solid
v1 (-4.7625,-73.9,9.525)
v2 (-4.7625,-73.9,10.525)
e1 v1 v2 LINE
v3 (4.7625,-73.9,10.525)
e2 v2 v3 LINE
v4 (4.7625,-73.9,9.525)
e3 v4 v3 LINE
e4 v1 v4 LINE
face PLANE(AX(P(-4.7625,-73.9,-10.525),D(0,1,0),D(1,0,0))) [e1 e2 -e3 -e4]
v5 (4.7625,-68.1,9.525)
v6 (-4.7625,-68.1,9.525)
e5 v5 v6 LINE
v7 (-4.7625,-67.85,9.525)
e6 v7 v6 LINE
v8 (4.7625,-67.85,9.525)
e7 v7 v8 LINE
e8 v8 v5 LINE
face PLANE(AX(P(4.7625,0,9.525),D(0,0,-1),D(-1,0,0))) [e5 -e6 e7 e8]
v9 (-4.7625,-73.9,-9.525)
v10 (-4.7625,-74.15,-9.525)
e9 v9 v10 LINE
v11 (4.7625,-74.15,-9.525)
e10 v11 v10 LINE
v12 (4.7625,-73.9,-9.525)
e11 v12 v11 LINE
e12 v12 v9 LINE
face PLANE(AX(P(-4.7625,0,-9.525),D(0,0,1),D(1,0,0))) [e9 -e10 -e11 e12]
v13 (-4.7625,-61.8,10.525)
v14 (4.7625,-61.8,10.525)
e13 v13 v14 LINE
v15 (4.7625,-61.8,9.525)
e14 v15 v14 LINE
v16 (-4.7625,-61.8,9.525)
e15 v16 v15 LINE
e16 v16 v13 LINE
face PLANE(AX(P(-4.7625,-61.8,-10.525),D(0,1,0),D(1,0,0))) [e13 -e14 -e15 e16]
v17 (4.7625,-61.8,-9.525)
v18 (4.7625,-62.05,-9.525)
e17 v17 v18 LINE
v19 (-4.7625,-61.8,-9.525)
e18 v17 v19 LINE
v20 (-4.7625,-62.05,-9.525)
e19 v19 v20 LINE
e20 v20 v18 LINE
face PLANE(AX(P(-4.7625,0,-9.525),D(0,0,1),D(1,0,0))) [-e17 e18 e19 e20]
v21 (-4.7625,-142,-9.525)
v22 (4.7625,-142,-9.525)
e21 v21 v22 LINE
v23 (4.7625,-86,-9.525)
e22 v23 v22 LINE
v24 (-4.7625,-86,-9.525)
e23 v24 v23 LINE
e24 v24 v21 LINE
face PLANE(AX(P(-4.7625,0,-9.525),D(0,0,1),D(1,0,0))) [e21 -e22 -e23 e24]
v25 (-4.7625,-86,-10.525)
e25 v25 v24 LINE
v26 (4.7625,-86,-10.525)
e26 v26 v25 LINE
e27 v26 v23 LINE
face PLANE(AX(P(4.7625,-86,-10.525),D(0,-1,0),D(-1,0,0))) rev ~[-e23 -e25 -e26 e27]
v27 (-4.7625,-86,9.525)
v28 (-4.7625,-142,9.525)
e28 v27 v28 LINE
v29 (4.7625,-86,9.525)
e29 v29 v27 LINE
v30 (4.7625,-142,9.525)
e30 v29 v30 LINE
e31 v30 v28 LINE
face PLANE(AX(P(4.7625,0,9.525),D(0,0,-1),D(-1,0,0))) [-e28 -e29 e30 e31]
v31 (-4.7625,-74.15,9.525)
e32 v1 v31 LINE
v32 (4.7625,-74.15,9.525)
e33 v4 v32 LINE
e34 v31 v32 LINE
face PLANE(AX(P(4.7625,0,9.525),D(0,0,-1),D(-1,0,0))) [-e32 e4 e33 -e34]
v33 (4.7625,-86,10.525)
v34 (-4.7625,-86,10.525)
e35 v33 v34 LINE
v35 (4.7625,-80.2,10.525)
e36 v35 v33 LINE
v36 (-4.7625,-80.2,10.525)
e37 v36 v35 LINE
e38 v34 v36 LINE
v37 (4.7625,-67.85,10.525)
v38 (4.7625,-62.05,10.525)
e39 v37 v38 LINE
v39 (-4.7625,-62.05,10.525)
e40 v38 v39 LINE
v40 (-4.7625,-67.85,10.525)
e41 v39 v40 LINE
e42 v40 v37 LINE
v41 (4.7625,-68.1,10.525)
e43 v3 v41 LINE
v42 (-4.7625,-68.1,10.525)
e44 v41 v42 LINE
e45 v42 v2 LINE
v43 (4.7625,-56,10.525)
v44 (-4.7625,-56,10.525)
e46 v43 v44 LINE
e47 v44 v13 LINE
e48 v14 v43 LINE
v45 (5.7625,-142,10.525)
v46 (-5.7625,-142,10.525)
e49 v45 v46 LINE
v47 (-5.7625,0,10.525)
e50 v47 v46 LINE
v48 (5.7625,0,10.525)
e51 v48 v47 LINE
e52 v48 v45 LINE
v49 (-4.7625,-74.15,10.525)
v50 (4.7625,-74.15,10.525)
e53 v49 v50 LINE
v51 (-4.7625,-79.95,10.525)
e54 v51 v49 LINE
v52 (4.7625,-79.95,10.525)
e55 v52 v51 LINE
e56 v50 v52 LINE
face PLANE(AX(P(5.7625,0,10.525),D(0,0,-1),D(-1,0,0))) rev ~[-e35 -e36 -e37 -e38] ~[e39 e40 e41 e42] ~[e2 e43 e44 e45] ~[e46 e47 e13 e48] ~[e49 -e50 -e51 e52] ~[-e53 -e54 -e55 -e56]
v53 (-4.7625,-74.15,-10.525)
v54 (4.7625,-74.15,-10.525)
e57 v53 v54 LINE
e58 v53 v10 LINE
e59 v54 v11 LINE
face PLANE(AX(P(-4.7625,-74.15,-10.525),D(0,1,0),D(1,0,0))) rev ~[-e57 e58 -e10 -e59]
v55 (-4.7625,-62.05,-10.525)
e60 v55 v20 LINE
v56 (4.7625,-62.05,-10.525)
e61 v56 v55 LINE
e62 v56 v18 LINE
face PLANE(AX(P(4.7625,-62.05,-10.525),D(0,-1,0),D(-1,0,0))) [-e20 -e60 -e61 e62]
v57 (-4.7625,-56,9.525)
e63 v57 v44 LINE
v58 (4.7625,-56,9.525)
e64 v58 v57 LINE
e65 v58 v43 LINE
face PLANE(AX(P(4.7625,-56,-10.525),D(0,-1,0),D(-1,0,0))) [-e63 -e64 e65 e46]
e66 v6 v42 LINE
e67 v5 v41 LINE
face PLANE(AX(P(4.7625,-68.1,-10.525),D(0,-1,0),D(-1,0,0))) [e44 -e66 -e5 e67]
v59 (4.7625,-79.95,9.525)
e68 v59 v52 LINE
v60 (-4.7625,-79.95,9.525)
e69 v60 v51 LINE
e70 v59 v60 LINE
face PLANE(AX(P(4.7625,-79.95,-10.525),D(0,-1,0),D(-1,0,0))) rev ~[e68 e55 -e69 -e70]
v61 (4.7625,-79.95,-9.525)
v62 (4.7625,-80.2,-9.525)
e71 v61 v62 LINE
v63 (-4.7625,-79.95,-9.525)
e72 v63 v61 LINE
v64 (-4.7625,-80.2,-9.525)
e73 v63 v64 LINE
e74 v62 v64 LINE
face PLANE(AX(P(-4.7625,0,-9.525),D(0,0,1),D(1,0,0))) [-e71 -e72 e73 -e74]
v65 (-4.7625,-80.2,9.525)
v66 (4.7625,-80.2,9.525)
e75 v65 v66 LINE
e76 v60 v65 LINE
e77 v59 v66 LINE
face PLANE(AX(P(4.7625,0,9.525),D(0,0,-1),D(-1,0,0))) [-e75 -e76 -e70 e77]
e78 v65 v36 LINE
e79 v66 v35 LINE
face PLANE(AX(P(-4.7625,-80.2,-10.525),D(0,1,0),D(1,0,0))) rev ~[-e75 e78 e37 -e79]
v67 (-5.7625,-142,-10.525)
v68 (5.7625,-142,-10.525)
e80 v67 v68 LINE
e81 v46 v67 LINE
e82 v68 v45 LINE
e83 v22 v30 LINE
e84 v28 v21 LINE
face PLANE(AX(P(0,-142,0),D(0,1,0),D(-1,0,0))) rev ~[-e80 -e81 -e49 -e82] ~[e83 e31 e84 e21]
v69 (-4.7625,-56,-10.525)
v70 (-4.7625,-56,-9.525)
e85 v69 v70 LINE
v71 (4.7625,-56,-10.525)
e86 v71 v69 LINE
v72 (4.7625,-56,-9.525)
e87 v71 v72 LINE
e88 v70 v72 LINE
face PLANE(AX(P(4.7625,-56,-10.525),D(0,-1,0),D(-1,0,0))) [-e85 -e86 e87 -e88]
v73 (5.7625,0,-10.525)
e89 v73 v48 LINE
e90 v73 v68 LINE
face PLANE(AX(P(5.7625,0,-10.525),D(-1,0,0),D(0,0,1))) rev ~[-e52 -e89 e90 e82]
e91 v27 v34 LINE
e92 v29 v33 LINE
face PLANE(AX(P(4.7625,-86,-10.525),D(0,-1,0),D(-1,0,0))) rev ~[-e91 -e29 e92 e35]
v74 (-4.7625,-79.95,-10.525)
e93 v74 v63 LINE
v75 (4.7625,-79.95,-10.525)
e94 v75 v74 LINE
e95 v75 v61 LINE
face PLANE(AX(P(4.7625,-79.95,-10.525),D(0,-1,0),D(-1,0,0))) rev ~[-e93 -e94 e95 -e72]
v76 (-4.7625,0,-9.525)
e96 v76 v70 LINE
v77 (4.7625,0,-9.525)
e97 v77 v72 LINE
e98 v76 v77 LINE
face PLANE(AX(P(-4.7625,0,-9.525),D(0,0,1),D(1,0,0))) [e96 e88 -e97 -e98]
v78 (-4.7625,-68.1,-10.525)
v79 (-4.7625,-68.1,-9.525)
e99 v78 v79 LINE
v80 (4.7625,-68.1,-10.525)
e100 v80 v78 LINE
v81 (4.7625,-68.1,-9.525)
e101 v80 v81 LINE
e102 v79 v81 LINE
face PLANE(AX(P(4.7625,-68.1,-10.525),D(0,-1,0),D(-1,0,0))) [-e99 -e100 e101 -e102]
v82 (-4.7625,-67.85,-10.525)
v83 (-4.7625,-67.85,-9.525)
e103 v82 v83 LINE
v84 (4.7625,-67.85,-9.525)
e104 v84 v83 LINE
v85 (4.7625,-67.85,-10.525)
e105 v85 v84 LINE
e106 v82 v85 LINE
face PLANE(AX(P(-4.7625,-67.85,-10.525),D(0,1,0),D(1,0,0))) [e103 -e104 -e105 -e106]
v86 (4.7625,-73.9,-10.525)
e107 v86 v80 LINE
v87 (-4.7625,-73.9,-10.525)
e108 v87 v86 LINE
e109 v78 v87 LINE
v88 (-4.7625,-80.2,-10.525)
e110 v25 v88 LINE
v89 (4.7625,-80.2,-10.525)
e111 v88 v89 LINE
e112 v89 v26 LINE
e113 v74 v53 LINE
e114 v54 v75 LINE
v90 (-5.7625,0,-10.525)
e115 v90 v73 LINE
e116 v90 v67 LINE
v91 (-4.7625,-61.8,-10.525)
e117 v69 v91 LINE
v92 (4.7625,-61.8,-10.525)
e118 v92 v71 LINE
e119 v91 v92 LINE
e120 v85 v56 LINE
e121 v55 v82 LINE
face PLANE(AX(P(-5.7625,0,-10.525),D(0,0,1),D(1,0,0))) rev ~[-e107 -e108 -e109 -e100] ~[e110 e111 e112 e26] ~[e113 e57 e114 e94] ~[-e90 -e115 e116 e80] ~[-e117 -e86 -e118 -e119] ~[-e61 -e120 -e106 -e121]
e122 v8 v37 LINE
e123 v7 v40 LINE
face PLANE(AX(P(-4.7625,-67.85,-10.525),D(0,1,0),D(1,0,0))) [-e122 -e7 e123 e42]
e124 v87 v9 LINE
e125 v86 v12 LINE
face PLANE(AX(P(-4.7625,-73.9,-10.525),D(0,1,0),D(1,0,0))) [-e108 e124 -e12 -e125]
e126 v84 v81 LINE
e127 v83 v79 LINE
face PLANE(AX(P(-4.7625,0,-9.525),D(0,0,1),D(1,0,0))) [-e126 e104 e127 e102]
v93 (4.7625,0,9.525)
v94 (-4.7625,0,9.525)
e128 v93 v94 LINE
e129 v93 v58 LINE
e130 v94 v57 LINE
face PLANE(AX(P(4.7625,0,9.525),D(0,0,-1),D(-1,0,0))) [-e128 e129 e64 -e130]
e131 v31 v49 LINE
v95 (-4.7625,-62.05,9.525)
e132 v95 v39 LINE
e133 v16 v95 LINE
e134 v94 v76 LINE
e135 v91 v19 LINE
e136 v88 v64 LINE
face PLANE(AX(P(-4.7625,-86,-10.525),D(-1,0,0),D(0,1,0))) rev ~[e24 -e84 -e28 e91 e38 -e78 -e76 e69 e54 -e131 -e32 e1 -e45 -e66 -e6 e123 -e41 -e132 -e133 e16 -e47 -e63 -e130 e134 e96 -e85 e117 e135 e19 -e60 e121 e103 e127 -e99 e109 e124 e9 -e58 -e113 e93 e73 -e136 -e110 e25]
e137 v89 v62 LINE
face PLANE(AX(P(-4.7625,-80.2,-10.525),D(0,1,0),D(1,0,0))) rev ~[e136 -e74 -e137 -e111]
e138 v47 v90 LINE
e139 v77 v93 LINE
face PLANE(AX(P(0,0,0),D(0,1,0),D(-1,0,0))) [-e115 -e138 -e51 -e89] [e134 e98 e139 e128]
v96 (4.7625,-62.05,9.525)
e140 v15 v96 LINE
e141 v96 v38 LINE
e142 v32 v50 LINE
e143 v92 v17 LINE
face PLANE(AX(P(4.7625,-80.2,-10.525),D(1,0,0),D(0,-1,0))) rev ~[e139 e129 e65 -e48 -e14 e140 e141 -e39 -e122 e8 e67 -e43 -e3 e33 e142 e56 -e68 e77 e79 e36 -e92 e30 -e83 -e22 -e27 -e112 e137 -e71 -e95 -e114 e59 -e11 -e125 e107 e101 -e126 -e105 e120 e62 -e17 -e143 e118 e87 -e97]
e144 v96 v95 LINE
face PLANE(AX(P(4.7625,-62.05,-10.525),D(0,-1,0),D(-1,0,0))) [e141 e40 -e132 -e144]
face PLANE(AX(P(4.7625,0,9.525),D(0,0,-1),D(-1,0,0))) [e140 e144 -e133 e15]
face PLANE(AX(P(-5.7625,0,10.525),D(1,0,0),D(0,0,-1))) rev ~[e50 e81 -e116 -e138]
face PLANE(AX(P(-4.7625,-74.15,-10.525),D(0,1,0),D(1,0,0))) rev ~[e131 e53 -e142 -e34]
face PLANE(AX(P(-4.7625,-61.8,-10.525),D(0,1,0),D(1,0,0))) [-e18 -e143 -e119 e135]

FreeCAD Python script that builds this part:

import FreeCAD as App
import Part
import Sketcher

V = App.Vector


def add_polygon(sketch, points):
    """Adds a closed chain of lines whose ends are joined by coincident constraints."""
    first, n = sketch.GeometryCount, len(points)
    for a, b in zip(points, points[1:] + points[:1]):
        sketch.addGeometry(Part.LineSegment(App.Vector(*a, 0), App.Vector(*b, 0)), False)
    for i in range(n):
        sketch.addConstraint(Sketcher.Constraint("Coincident", first + i, 2, first + (i + 1) % n, 1))

doc = App.newDocument("Part")
body = doc.addObject("PartDesign::Body", "Body")

# Sketch on XZ plane
sketch1 = body.newObject("Sketcher::SketchObject", "Sketch")
sketch1.AttachmentSupport = (doc.getObject("XZ_Plane"), [""])
sketch1.MapMode = "FlatFace"
add_polygon(sketch1, [(5.7625, -10.525), (-5.7625, -10.525), (-5.7625, 10.525), (5.7625, 10.525)])  # lines 0-3
add_polygon(sketch1, [(-4.7625, 9.525), (-4.7625, -9.525), (4.7625, -9.525), (4.7625, 9.525)])  # lines 4-7
sketch1.addConstraint([
    Sketcher.Constraint("Horizontal", 0),
    Sketcher.Constraint("Vertical", 1),
    Sketcher.Constraint("Horizontal", 2),
    Sketcher.Constraint("Vertical", 3),
    Sketcher.Constraint("Vertical", 4),
    Sketcher.Constraint("Horizontal", 5),
    Sketcher.Constraint("Vertical", 6),
    Sketcher.Constraint("Horizontal", 7),
    Sketcher.Constraint("Symmetric", 0, 2, 2, 2, -1, 1),
    Sketcher.Constraint("Symmetric", 4, 2, 6, 2, -1, 1),
    Sketcher.Constraint("DistanceY", 1, 1, 1, 2, 21.05),
    Sketcher.Constraint("DistanceY", 4, 2, 4, 1, 19.05),
    Sketcher.Constraint("DistanceX", 0, 2, 0, 1, 11.525),
    Sketcher.Constraint("DistanceX", 5, 1, 5, 2, 9.525),
])
pad1 = body.newObject("PartDesign::Pad", "Pad")
pad1.Profile = sketch1
pad1.Length = 142

# Sketch on XY plane
sketch2 = body.newObject("Sketcher::SketchObject", "Sketch001")
sketch2.AttachmentSupport = (doc.getObject("XY_Plane"), [""])
sketch2.MapMode = "FlatFace"
sketch2.AttachmentOffset = App.Placement(V(0, 0, -10.525), App.Rotation())
add_polygon(sketch2, [(4.7625, -73.9), (-4.7625, -73.9), (-4.7625, -68.1), (4.7625, -68.1)])  # lines 0-3
add_polygon(sketch2, [(4.7625, -67.85), (-4.7625, -67.85), (-4.7625, -62.05), (4.7625, -62.05)])  # lines 4-7
add_polygon(sketch2, [(4.7625, -61.8), (-4.7625, -61.8), (-4.7625, -56), (4.7625, -56)])  # lines 8-11
add_polygon(sketch2, [(-4.7625, -79.95), (-4.7625, -74.15), (4.7625, -74.15), (4.7625, -79.95)])  # lines 12-15
add_polygon(sketch2, [(-4.7625, -86), (-4.7625, -80.2), (4.7625, -80.2), (4.7625, -86)])  # lines 16-19
sketch2.addConstraint([
    Sketcher.Constraint("Horizontal", 0),
    Sketcher.Constraint("Vertical", 1),
    Sketcher.Constraint("Horizontal", 2),
    Sketcher.Constraint("Vertical", 3),
    Sketcher.Constraint("Horizontal", 4),
    Sketcher.Constraint("Vertical", 5),
    Sketcher.Constraint("Horizontal", 6),
    Sketcher.Constraint("Vertical", 7),
    Sketcher.Constraint("Horizontal", 8),
    Sketcher.Constraint("Vertical", 9),
    Sketcher.Constraint("Horizontal", 10),
    Sketcher.Constraint("Vertical", 11),
    Sketcher.Constraint("Vertical", 12),
    Sketcher.Constraint("Horizontal", 13),
    Sketcher.Constraint("Vertical", 14),
    Sketcher.Constraint("Horizontal", 15),
    Sketcher.Constraint("Vertical", 16),
    Sketcher.Constraint("Horizontal", 17),
    Sketcher.Constraint("Vertical", 18),
    Sketcher.Constraint("Horizontal", 19),
    Sketcher.Constraint("Vertical", 1, 2, 4, 2),
    Sketcher.Constraint("Vertical", 3, 2, 6, 2),
    Sketcher.Constraint("Vertical", 5, 2, 8, 2),
    Sketcher.Constraint("Vertical", 7, 2, 10, 2),
    Sketcher.Constraint("Vertical", 9, 2, 12, 2),
    Sketcher.Constraint("Vertical", 11, 2, 13, 2),
    Sketcher.Constraint("Vertical", 15, 2, 16, 2),
    Sketcher.Constraint("Vertical", 14, 2, 17, 2),
    Sketcher.Constraint("Equal", 3, 5),
    Sketcher.Constraint("Equal", 7, 9),
    Sketcher.Constraint("Equal", 11, 12),
    Sketcher.Constraint("Equal", 14, 16),
    Sketcher.Constraint("DistanceY", 1, 1, 1, 2, 5.8),
    Sketcher.Constraint("DistanceY", 1, 2, 4, 2, 0.25),
    Sketcher.Constraint("DistanceY", 5, 2, 8, 2, 0.25),
    Sketcher.Constraint("DistanceY", 12, 2, 0, 2, 0.25),
    Sketcher.Constraint("DistanceY", 16, 2, 15, 2, 0.25),
    Sketcher.Constraint("DistanceY", 9, 2, -1, 1, 56.0),
    Sketcher.Constraint("DistanceX", 0, 2, 0, 1, 9.525),
    Sketcher.Constraint("DistanceX", 0, 2, -1, 1, 4.7625),
])
pocket1 = body.newObject("PartDesign::Pocket", "Pocket")
pocket1.Profile = sketch2
pocket1.Type = "ThroughAll"
pocket1.Reversed = True

doc.recompute()
